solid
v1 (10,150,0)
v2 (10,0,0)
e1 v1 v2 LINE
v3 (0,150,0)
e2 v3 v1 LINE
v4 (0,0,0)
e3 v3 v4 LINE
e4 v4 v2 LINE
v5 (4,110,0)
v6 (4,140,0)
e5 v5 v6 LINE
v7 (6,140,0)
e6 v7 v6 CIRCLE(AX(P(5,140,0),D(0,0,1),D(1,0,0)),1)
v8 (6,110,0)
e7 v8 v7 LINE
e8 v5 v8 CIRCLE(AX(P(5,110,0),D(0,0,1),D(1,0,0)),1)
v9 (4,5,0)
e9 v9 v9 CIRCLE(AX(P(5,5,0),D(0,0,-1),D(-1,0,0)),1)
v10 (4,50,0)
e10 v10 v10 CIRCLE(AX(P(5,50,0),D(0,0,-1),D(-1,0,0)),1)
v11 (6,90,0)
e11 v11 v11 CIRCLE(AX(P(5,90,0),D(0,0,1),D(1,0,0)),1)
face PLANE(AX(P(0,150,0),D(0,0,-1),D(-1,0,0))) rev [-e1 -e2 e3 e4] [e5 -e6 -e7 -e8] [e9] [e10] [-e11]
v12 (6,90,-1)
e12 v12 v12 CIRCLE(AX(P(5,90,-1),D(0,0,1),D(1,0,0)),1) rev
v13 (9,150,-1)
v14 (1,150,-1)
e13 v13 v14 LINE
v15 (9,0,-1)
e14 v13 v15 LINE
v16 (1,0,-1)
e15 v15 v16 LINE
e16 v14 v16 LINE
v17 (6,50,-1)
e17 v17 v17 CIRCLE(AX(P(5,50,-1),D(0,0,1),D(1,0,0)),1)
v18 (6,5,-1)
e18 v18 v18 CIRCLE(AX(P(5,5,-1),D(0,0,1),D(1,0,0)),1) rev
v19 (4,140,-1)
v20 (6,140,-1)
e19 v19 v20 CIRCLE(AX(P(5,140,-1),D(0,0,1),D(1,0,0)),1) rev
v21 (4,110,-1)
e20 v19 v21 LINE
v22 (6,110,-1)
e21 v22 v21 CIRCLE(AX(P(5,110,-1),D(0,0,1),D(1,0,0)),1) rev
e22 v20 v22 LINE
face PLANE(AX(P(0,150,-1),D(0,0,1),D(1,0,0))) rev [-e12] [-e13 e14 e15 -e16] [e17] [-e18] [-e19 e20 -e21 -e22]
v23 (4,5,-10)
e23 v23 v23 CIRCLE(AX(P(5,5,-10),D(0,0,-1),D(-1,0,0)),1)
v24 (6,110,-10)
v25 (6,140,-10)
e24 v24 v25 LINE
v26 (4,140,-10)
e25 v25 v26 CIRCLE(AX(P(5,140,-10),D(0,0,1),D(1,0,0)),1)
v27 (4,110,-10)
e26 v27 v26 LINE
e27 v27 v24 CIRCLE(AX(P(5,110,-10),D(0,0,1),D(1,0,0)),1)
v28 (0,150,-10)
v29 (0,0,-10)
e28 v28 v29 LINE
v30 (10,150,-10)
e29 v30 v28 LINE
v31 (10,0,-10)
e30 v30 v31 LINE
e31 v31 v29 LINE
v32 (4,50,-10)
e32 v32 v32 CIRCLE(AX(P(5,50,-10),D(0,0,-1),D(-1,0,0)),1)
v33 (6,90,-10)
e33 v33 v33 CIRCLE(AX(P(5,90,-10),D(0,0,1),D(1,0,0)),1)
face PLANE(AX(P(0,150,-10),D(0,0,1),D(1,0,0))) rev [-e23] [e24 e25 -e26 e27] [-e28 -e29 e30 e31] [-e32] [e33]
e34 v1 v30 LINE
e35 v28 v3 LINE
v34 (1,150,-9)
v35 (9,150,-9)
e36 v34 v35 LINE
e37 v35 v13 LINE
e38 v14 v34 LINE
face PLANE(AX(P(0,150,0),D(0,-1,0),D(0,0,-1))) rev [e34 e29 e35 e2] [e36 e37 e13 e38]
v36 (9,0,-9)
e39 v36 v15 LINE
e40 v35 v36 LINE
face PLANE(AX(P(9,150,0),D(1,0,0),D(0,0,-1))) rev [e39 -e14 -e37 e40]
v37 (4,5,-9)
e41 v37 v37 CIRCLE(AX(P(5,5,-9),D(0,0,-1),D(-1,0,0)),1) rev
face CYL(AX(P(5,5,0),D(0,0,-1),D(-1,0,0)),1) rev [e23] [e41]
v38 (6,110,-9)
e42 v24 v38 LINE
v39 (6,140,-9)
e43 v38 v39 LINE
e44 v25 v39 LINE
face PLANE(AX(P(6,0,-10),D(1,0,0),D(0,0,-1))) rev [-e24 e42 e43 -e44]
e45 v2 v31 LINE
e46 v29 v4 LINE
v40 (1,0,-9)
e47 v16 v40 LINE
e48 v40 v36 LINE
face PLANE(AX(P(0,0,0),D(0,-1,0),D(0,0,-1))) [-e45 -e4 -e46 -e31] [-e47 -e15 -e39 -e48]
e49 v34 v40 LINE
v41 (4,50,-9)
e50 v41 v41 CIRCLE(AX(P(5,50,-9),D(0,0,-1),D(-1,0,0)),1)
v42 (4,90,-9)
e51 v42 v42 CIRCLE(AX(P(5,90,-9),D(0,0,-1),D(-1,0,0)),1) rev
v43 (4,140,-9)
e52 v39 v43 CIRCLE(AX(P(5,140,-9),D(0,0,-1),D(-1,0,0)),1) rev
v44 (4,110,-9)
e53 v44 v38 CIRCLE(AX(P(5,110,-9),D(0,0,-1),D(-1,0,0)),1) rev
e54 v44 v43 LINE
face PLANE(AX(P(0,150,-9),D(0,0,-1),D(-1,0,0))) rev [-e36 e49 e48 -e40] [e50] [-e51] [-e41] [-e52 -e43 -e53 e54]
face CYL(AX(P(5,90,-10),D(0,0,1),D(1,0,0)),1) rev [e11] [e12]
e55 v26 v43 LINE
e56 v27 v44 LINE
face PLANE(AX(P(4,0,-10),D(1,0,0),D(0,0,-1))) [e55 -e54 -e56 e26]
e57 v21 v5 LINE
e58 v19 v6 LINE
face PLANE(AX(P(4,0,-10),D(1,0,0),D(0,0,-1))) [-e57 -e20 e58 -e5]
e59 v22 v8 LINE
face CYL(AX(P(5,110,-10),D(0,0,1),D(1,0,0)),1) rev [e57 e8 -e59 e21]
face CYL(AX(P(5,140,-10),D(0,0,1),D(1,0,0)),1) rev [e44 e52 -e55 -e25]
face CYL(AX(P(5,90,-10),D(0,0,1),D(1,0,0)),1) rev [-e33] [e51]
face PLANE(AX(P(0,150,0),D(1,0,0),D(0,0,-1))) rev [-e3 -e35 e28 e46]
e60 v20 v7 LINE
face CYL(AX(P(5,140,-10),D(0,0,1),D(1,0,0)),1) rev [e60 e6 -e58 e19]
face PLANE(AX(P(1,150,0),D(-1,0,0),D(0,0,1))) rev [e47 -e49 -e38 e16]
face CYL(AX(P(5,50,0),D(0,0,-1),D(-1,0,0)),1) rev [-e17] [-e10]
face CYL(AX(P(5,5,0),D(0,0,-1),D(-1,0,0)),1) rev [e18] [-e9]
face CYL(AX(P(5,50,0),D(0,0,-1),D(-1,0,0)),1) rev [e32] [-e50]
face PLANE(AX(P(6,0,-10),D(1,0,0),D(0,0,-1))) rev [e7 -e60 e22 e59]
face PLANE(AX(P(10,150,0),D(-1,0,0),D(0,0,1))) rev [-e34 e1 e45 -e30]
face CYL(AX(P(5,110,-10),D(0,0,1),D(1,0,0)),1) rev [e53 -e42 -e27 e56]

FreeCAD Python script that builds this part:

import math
import FreeCAD as App
import Part
import Sketcher

V = App.Vector

doc = App.newDocument("Part")
body = doc.addObject("PartDesign::Body", "Body")

# Sketch on XZ plane
sketch1 = body.newObject("Sketcher::SketchObject", "Sketch")
sketch1.AttachmentSupport = (doc.getObject("XZ_Plane"), [""])
sketch1.MapMode = "FlatFace"
sketch1.addGeometry([
    Part.LineSegment(V(0, -10, 0), V(0, 0, 0)),  # 0
    Part.LineSegment(V(0, 0, 0), V(10, 0, 0)),  # 1
    Part.LineSegment(V(10, 0, 0), V(10, -10, 0)),  # 2
    Part.LineSegment(V(10, -10, 0), V(0, -10, 0)),  # 3
    Part.LineSegment(V(8, -2, 0), V(2, -2, 0)),  # 4
    Part.LineSegment(V(2, -2, 0), V(2, -8, 0)),  # 5
    Part.LineSegment(V(2, -8, 0), V(8, -8, 0)),  # 6
    Part.LineSegment(V(8, -8, 0), V(8, -2, 0)),  # 7
], False)
sketch1.addConstraint([
    Sketcher.Constraint("Coincident", 0, 2, 1, 1),
    Sketcher.Constraint("Coincident", 1, 2, 2, 1),
    Sketcher.Constraint("Coincident", 2, 2, 3, 1),
    Sketcher.Constraint("Coincident", 3, 2, 0, 1),
    Sketcher.Constraint("Coincident", 4, 2, 5, 1),
    Sketcher.Constraint("Coincident", 5, 2, 6, 1),
    Sketcher.Constraint("Coincident", 6, 2, 7, 1),
    Sketcher.Constraint("Coincident", 7, 2, 4, 1),
    Sketcher.Constraint("Vertical", 0),
    Sketcher.Constraint("Horizontal", 1),
    Sketcher.Constraint("Vertical", 2),
    Sketcher.Constraint("Horizontal", 3),
    Sketcher.Constraint("Horizontal", 4),
    Sketcher.Constraint("Vertical", 5),
    Sketcher.Constraint("Horizontal", 6),
    Sketcher.Constraint("Vertical", 7),
    Sketcher.Constraint("Coincident", 0, 2, -1, 1),
    Sketcher.Constraint("Equal", 3, 0),
    Sketcher.Constraint("Equal", 6, 5),
    Sketcher.Constraint("DistanceX", 1, 1, 1, 2, 10.0),
    Sketcher.Constraint("DistanceX", 4, 2, 4, 1, 6.0),
    Sketcher.Constraint("DistanceX", -1, 1, 4, 2, 2.0),
    Sketcher.Constraint("DistanceY", 4, 2, -1, 1, 2.0),
])
pad1 = body.newObject("PartDesign::Pad", "Pad")
pad1.Profile = sketch1
pad1.Length = 150
pad1.Reversed = True

# Sketch on XY plane
sketch2 = body.newObject("Sketcher::SketchObject", "Sketch001")
sketch2.AttachmentSupport = (doc.getObject("XY_Plane"), [""])
sketch2.MapMode = "FlatFace"
sketch2.addGeometry([
    Part.ArcOfCircle(Part.Circle(V(5, 110, 0), V(0, 0, 1), 1), math.radians(180), math.radians(360)),
    Part.LineSegment(V(6, 110, 0), V(6, 140, 0)),
    Part.ArcOfCircle(Part.Circle(V(5, 140, 0), V(0, 0, 1), 1), math.radians(0), math.radians(180)),
    Part.LineSegment(V(4, 140, 0), V(4, 110, 0)),
], False)
sketch2.addConstraint([
    Sketcher.Constraint("Tangent", 0, 2, 1, 1),
    Sketcher.Constraint("Tangent", 1, 2, 2, 1),
    Sketcher.Constraint("Tangent", 2, 2, 3, 1),
    Sketcher.Constraint("Tangent", 3, 2, 0, 1),
    Sketcher.Constraint("Vertical", 1),
    Sketcher.Constraint("Vertical", 3),
    Sketcher.Constraint("Radius", 0, 1.0),
    Sketcher.Constraint("DistanceY", 1, 1, 1, 2, 30.0),
    Sketcher.Constraint("DistanceX", -1, 1, 0, 3, 5.0),
    Sketcher.Constraint("DistanceY", -1, 1, 0, 3, 110.0),
])
pocket1 = body.newObject("PartDesign::Pocket", "Pocket")
pocket1.Profile = sketch2
pocket1.Length = 10

# Sketch on XY plane
sketch3 = body.newObject("Sketcher::SketchObject", "Sketch002")
sketch3.AttachmentSupport = (doc.getObject("XY_Plane"), [""])
sketch3.MapMode = "FlatFace"
sketch3.addGeometry(Part.Circle(V(5, 90, 0), V(0, 0, 1), 1), False)
sketch3.addConstraint([
    Sketcher.Constraint("Diameter", 0, 2.0),
    Sketcher.Constraint("DistanceX", -1, 1, 0, 3, 5.0),
    Sketcher.Constraint("DistanceY", -1, 1, 0, 3, 90.0),
])
pocket2 = body.newObject("PartDesign::Pocket", "Pocket001")
pocket2.Profile = sketch3
pocket2.Length = 10

# Sketch on XY plane
sketch4 = body.newObject("Sketcher::SketchObject", "Sketch003")
sketch4.AttachmentSupport = (doc.getObject("XY_Plane"), [""])
sketch4.MapMode = "FlatFace"
sketch4.AttachmentOffset = App.Placement(V(0, 0, -10), App.Rotation())
sketch4.addGeometry(Part.Circle(V(5, 5, 0), V(0, 0, 1), 1), False)
sketch4.addConstraint([
    Sketcher.Constraint("Diameter", 0, 2.0),
    Sketcher.Constraint("DistanceX", -1, 1, 0, 3, 5.0),
    Sketcher.Constraint("DistanceY", -1, 1, 0, 3, 5.0),
])
pocket3 = body.newObject("PartDesign::Pocket", "Pocket002")
pocket3.Profile = sketch4
pocket3.Length = 10
pocket3.Reversed = True

# Sketch on XZ plane
sketch5 = body.newObject("Sketcher::SketchObject", "Sketch004")
sketch5.AttachmentSupport = (doc.getObject("XZ_Plane"), [""])
sketch5.MapMode = "FlatFace"
sketch5.addGeometry([
    Part.LineSegment(V(1, -9, 0), V(1, -1, 0)),
    Part.LineSegment(V(1, -1, 0), V(9, -1, 0)),
    Part.LineSegment(V(9, -1, 0), V(9, -9, 0)),
    Part.LineSegment(V(9, -9, 0), V(1, -9, 0)),
], False)
sketch5.addConstraint([
    Sketcher.Constraint("Coincident", 0, 2, 1, 1),
    Sketcher.Constraint("Coincident", 1, 2, 2, 1),
    Sketcher.Constraint("Coincident", 2, 2, 3, 1),
    Sketcher.Constraint("Coincident", 3, 2, 0, 1),
    Sketcher.Constraint("Vertical", 0),
    Sketcher.Constraint("Horizontal", 1),
    Sketcher.Constraint("Vertical", 2),
    Sketcher.Constraint("Horizontal", 3),
    Sketcher.Constraint("Equal", 3, 0),
    Sketcher.Constraint("DistanceX", 1, 1, 1, 2, 8.0),
    Sketcher.Constraint("DistanceX", -1, 1, 0, 2, 1.0),
    Sketcher.Constraint("DistanceY", 0, 2, -1, 1, 1.0),
])
pocket4 = body.newObject("PartDesign::Pocket", "Pocket003")
pocket4.Profile = sketch5
pocket4.Length = 150

# Sketch on XY plane
sketch6 = body.newObject("Sketcher::SketchObject", "Sketch005")
sketch6.AttachmentSupport = (doc.getObject("XY_Plane"), [""])
sketch6.MapMode = "FlatFace"
sketch6.AttachmentOffset = App.Placement(V(0, 0, -10), App.Rotation())
sketch6.addGeometry(Part.Circle(V(5, 50, 0), V(0, 0, 1), 1), False)
sketch6.addConstraint([
    Sketcher.Constraint("Diameter", 0, 2.0),
    Sketcher.Constraint("DistanceX", -1, 1, 0, 3, 5.0),
    Sketcher.Constraint("DistanceY", -1, 1, 0, 3, 50.0),
])
pocket5 = body.newObject("PartDesign::Pocket", "Pocket004")
pocket5.Profile = sketch6
pocket5.Length = 10
pocket5.Reversed = True

doc.recompute()
